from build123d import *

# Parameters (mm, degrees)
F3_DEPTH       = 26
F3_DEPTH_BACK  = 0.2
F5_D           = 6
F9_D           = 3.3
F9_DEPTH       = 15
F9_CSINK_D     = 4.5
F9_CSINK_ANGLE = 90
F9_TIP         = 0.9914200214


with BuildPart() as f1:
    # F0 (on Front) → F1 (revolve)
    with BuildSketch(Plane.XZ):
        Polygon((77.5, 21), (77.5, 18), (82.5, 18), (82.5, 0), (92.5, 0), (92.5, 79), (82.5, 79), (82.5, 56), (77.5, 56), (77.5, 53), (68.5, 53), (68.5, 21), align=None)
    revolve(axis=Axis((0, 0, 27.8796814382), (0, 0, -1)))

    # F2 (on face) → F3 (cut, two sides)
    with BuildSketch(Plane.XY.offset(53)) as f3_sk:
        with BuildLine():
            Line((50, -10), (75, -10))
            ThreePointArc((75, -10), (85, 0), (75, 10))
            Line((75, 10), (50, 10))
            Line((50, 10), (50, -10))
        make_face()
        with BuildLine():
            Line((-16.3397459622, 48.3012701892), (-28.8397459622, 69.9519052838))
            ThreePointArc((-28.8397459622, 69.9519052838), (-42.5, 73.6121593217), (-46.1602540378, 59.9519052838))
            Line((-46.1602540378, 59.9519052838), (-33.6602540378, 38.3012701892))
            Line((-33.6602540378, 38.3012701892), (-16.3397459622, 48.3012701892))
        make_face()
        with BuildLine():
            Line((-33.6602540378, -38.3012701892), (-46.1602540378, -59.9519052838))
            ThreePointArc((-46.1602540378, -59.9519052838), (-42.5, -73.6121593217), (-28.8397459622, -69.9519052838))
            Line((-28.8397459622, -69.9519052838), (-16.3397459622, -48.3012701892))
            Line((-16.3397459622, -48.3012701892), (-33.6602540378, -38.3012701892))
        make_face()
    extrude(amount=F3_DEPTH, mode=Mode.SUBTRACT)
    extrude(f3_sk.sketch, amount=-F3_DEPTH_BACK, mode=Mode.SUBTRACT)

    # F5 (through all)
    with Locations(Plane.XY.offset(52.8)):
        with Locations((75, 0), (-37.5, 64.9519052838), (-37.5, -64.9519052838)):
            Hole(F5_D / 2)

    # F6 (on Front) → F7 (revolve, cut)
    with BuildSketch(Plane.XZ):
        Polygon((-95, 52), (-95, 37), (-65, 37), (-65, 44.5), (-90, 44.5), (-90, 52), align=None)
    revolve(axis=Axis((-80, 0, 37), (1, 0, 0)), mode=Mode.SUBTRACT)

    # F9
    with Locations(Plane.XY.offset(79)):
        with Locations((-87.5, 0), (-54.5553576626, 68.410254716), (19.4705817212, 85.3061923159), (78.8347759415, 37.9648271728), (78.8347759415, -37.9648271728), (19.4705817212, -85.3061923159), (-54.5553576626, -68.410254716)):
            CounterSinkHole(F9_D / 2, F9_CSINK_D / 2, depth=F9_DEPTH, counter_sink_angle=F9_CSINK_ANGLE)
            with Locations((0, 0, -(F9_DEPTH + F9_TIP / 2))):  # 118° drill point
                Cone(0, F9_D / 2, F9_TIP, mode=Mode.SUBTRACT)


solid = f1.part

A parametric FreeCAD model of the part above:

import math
import FreeCAD as App
import Part
import Sketcher
Q = App.Units.Quantity

doc = App.newDocument("Part")
body = doc.addObject("PartDesign::Body", "Body")

sketch1 = doc.addObject("Sketcher::SketchObject", "Sketch")
body.addObject(sketch1)
sketch1.AttachmentSupport = (doc.XZ_Plane, [""])
sketch1.MapMode = "FlatFace"
sketch1.addGeometry([
    Part.LineSegment(App.Vector(77.5, 21, 0), App.Vector(77.5, 18, 0)),
    Part.LineSegment(App.Vector(77.5, 18, 0), App.Vector(82.5, 18, 0)),
    Part.LineSegment(App.Vector(82.5, 18, 0), App.Vector(82.5, 0, 0)),
    Part.LineSegment(App.Vector(82.5, 0, 0), App.Vector(92.5, 0, 0)),
    Part.LineSegment(App.Vector(92.5, 0, 0), App.Vector(92.5, 79, 0)),
    Part.LineSegment(App.Vector(92.5, 79, 0), App.Vector(82.5, 79, 0)),
    Part.LineSegment(App.Vector(82.5, 79, 0), App.Vector(82.5, 56, 0)),
    Part.LineSegment(App.Vector(82.5, 56, 0), App.Vector(77.5, 56, 0)),
    Part.LineSegment(App.Vector(77.5, 56, 0), App.Vector(77.5, 53, 0)),
    Part.LineSegment(App.Vector(77.5, 53, 0), App.Vector(68.5, 53, 0)),
    Part.LineSegment(App.Vector(68.5, 53, 0), App.Vector(68.5, 21, 0)),
    Part.LineSegment(App.Vector(68.5, 21, 0), App.Vector(77.5, 21, 0)),
], False)
sketch1.addConstraint([
    Sketcher.Constraint("Coincident", 0, 2, 1, 1),
    Sketcher.Constraint("Coincident", 1, 2, 2, 1),
    Sketcher.Constraint("Coincident", 2, 2, 3, 1),
    Sketcher.Constraint("Coincident", 3, 2, 4, 1),
    Sketcher.Constraint("Coincident", 4, 2, 5, 1),
    Sketcher.Constraint("Coincident", 5, 2, 6, 1),
    Sketcher.Constraint("Coincident", 6, 2, 7, 1),
    Sketcher.Constraint("Coincident", 7, 2, 8, 1),
    Sketcher.Constraint("Coincident", 8, 2, 9, 1),
    Sketcher.Constraint("Coincident", 9, 2, 10, 1),
    Sketcher.Constraint("Coincident", 10, 2, 11, 1),
    Sketcher.Constraint("Coincident", 11, 2, 0, 1),
    Sketcher.Constraint("Vertical", 0),
    Sketcher.Constraint("Horizontal", 1),
    Sketcher.Constraint("Vertical", 2),
    Sketcher.Constraint("Horizontal", 3),
    Sketcher.Constraint("Vertical", 4),
    Sketcher.Constraint("Horizontal", 5),
    Sketcher.Constraint("Vertical", 6),
    Sketcher.Constraint("Horizontal", 7),
    Sketcher.Constraint("Vertical", 8),
    Sketcher.Constraint("Horizontal", 9),
    Sketcher.Constraint("Vertical", 10),
    Sketcher.Constraint("Horizontal", 11),
    Sketcher.Constraint("PointOnObject", 2, 2, -1),
    Sketcher.Constraint("Vertical", 2, 2, 5, 2),
    Sketcher.Constraint("Vertical", 0, 2, 7, 2),
    Sketcher.Constraint("Equal", 0, 8),
    Sketcher.Constraint("DistanceX", 1, 1, 1, 2, Q("5 mm")),
    Sketcher.Constraint("DistanceX", 3, 1, 3, 2, Q("10 mm")),
    Sketcher.Constraint("DistanceX", 9, 2, 9, 1, Q("9 mm")),
    Sketcher.Constraint("DistanceY", 0, 2, 0, 1, Q("3 mm")),
    Sketcher.Constraint("DistanceY", 2, 2, 2, 1, Q("18 mm")),
    Sketcher.Constraint("DistanceY", 4, 1, 4, 2, Q("79 mm")),
    Sketcher.Constraint("DistanceY", 6, 2, 6, 1, Q("23 mm")),
    Sketcher.Constraint("DistanceX", -1, 1, 0, 2, Q("77.5 mm")),
])
revolution = doc.addObject("PartDesign::Revolution", "Revolution")
body.addObject(revolution)
revolution.Profile = sketch1
revolution.ReferenceAxis = (sketch1, ["V_Axis"])
revolution.Angle = 360

sketch2 = doc.addObject("Sketcher::SketchObject", "Sketch001")
body.addObject(sketch2)
sketch2.AttachmentSupport = (doc.XY_Plane, [""])
sketch2.MapMode = "FlatFace"
sketch2.AttachmentOffset = App.Placement(App.Vector(0, 0, 53), App.Rotation())
sketch2.addGeometry([
    Part.LineSegment(App.Vector(50, -10, 0), App.Vector(75, -10, 0)),
    Part.ArcOfCircle(Part.Circle(App.Vector(75, 0, 0), App.Vector(0, 0, 1), 10), math.radians(-90), math.radians(90)),
    Part.LineSegment(App.Vector(75, 10, 0), App.Vector(50, 10, 0)),
    Part.LineSegment(App.Vector(50, 10, 0), App.Vector(50, -10, 0)),
    Part.LineSegment(App.Vector(-16.339746, 48.30127, 0), App.Vector(-28.839746, 69.951905, 0)),
    Part.ArcOfCircle(Part.Circle(App.Vector(-37.5, 64.951905, 0), App.Vector(0, 0, 1), 10), math.radians(30), math.radians(210)),
    Part.LineSegment(App.Vector(-46.160254, 59.951905, 0), App.Vector(-33.660254, 38.30127, 0)),
    Part.LineSegment(App.Vector(-33.660254, 38.30127, 0), App.Vector(-16.339746, 48.30127, 0)),
    Part.LineSegment(App.Vector(-33.660254, -38.30127, 0), App.Vector(-46.160254, -59.951905, 0)),
    Part.ArcOfCircle(Part.Circle(App.Vector(-37.5, -64.951905, 0), App.Vector(0, 0, 1), 10), math.radians(150), math.radians(330)),
    Part.LineSegment(App.Vector(-28.839746, -69.951905, 0), App.Vector(-16.339746, -48.30127, 0)),
    Part.LineSegment(App.Vector(-16.339746, -48.30127, 0), App.Vector(-33.660254, -38.30127, 0)),
], False)
sketch2.addConstraint([
    Sketcher.Constraint("Tangent", 0, 2, 1, 1),
    Sketcher.Constraint("Tangent", 1, 2, 2, 1),
    Sketcher.Constraint("Coincident", 2, 2, 3, 1),
    Sketcher.Constraint("Coincident", 3, 2, 0, 1),
    Sketcher.Constraint("Tangent", 4, 2, 5, 1),
    Sketcher.Constraint("Tangent", 5, 2, 6, 1),
    Sketcher.Constraint("Coincident", 6, 2, 7, 1),
    Sketcher.Constraint("Coincident", 7, 2, 4, 1),
    Sketcher.Constraint("Tangent", 8, 2, 9, 1),
    Sketcher.Constraint("Tangent", 9, 2, 10, 1),
    Sketcher.Constraint("Coincident", 10, 2, 11, 1),
    Sketcher.Constraint("Coincident", 11, 2, 8, 1),
    Sketcher.Constraint("Horizontal", 0),
    Sketcher.Constraint("Horizontal", 2),
    Sketcher.Constraint("Vertical", 3),
    Sketcher.Constraint("Equal", 1, 5),
    Sketcher.Constraint("Equal", 5, 9),
    Sketcher.Constraint("Symmetric", 5, 3, 9, 3, -1),
    Sketcher.Constraint("Symmetric", 7, 2, 10, 2, -1),
    Sketcher.Constraint("Symmetric", 6, 2, 11, 2, -1),
    Sketcher.Constraint("PointOnObject", 1, 3, -1),
    Sketcher.Constraint("Parallel", 4, 6),
    Sketcher.Constraint("Perpendicular", 6, 7),
    Sketcher.Constraint("Radius", 1, Q("10 mm")),
    Sketcher.Constraint("DistanceX", 0, 1, 0, 2, Q("25 mm")),
    Sketcher.Constraint("Angle", 4, Q("120 deg")),
    Sketcher.Constraint("Distance", 4, Q("25 mm")),
    Sketcher.Constraint("DistanceX", -1, 1, 1, 3, Q("75 mm")),
    Sketcher.Constraint("DistanceX", 5, 3, -1, 1, Q("37.5 mm")),
    Sketcher.Constraint("DistanceY", -1, 1, 6, 2, Q("38.30127 mm")),
])
pocket1 = doc.addObject("PartDesign::Pocket", "Pocket")
body.addObject(pocket1)
pocket1.Profile = sketch2
pocket1.Type = "TwoLengths"
pocket1.Length = 26
pocket1.Length2 = 0.2
pocket1.Reversed = True

sketch3 = doc.addObject("Sketcher::SketchObject", "Sketch002")
body.addObject(sketch3)
sketch3.AttachmentSupport = (doc.XY_Plane, [""])
sketch3.MapMode = "FlatFace"
sketch3.AttachmentOffset = App.Placement(App.Vector(0, 0, 52.8), App.Rotation())
sketch3.addGeometry([
    Part.Circle(App.Vector(75, 0, 0), App.Vector(0, 0, 1), 3),
    Part.Circle(App.Vector(-37.5, 64.951905, 0), App.Vector(0, 0, 1), 3),
    Part.Circle(App.Vector(-37.5, -64.951905, 0), App.Vector(0, 0, 1), 3),
], False)
sketch3.addConstraint([
    Sketcher.Constraint("Equal", 0, 1),
    Sketcher.Constraint("Equal", 1, 2),
    Sketcher.Constraint("Symmetric", 1, 3, 2, 3, -1),
    Sketcher.Constraint("PointOnObject", 0, 3, -1),
    Sketcher.Constraint("Diameter", 0, Q("6 mm")),
    Sketcher.Constraint("DistanceX", -1, 1, 0, 3, Q("75 mm")),
    Sketcher.Constraint("DistanceX", 1, 3, -1, 1, Q("37.5 mm")),
    Sketcher.Constraint("DistanceY", 2, 3, 1, 3, Q("129.903811 mm")),
])
doc.recompute()
hole = doc.addObject("PartDesign::Hole", "Hole")
body.addObject(hole)
hole.Profile = sketch3
hole.ThreadType = "None"
hole.Diameter = 6
hole.DepthType = "ThroughAll"

sketch4 = doc.addObject("Sketcher::SketchObject", "Sketch003")
body.addObject(sketch4)
sketch4.AttachmentSupport = (doc.XZ_Plane, [""])
sketch4.MapMode = "FlatFace"
sketch4.addGeometry([
    Part.LineSegment(App.Vector(-95, 52, 0), App.Vector(-95, 37, 0)),
    Part.LineSegment(App.Vector(-95, 37, 0), App.Vector(-65, 37, 0)),
    Part.LineSegment(App.Vector(-65, 37, 0), App.Vector(-65, 44.5, 0)),
    Part.LineSegment(App.Vector(-65, 44.5, 0), App.Vector(-90, 44.5, 0)),
    Part.LineSegment(App.Vector(-90, 44.5, 0), App.Vector(-90, 52, 0)),
    Part.LineSegment(App.Vector(-90, 52, 0), App.Vector(-95, 52, 0)),
], False)
sketch4.addGeometry(Part.LineSegment(App.Vector(-95, 37, 0), App.Vector(-65, 37, 0)), True)
sketch4.addConstraint([
    Sketcher.Constraint("Coincident", 0, 2, 1, 1),
    Sketcher.Constraint("Coincident", 1, 2, 2, 1),
    Sketcher.Constraint("Coincident", 2, 2, 3, 1),
    Sketcher.Constraint("Coincident", 3, 2, 4, 1),
    Sketcher.Constraint("Coincident", 4, 2, 5, 1),
    Sketcher.Constraint("Coincident", 5, 2, 0, 1),
    Sketcher.Constraint("Vertical", 0),
    Sketcher.Constraint("Horizontal", 1),
    Sketcher.Constraint("Vertical", 2),
    Sketcher.Constraint("Horizontal", 3),
    Sketcher.Constraint("Vertical", 4),
    Sketcher.Constraint("Horizontal", 5),
    Sketcher.Constraint("Horizontal", 6),
    Sketcher.Constraint("Coincident", 6, 1, 0, 2),
    Sketcher.Constraint("Vertical", 2, 2, 6, 2),
    Sketcher.Constraint("Equal", 2, 4),
    Sketcher.Constraint("DistanceX", 1, 1, 1, 2, Q("30 mm")),
    Sketcher.Constraint("DistanceX", 3, 2, 3, 1, Q("25 mm")),
    Sketcher.Constraint("DistanceY", 0, 2, 0, 1, Q("15 mm")),
    Sketcher.Constraint("DistanceX", 0, 2, -1, 1, Q("95 mm")),
    Sketcher.Constraint("DistanceY", -1, 1, 0, 2, Q("37 mm")),
])
groove = doc.addObject("PartDesign::Groove", "Groove")
body.addObject(groove)
groove.Profile = sketch4
groove.ReferenceAxis = (sketch4, ["Axis0"])
groove.Angle = 360

sketch5 = doc.addObject("Sketcher::SketchObject", "Sketch004")
body.addObject(sketch5)
sketch5.AttachmentSupport = (doc.XY_Plane, [""])
sketch5.MapMode = "FlatFace"
sketch5.AttachmentOffset = App.Placement(App.Vector(0, 0, 79), App.Rotation())
sketch5.addGeometry([
    Part.Circle(App.Vector(-87.5, 0, 0), App.Vector(0, 0, 1), 1.65),
    Part.Circle(App.Vector(-54.555358, 68.410255, 0), App.Vector(0, 0, 1), 1.65),
    Part.Circle(App.Vector(19.470582, 85.306192, 0), App.Vector(0, 0, 1), 1.65),
    Part.Circle(App.Vector(78.834776, 37.964827, 0), App.Vector(0, 0, 1), 1.65),
    Part.Circle(App.Vector(78.834776, -37.964827, 0), App.Vector(0, 0, 1), 1.65),
    Part.Circle(App.Vector(19.470582, -85.306192, 0), App.Vector(0, 0, 1), 1.65),
    Part.Circle(App.Vector(-54.555358, -68.410255, 0), App.Vector(0, 0, 1), 1.65),
], False)
sketch5.addConstraint([
    Sketcher.Constraint("Equal", 0, 1),
    Sketcher.Constraint("Equal", 1, 2),
    Sketcher.Constraint("Equal", 2, 3),
    Sketcher.Constraint("Equal", 3, 4),
    Sketcher.Constraint("Equal", 4, 5),
    Sketcher.Constraint("Equal", 5, 6),
    Sketcher.Constraint("Symmetric", 3, 3, 4, 3, -1),
    Sketcher.Constraint("Symmetric", 2, 3, 5, 3, -1),
    Sketcher.Constraint("Symmetric", 1, 3, 6, 3, -1),
    Sketcher.Constraint("PointOnObject", 0, 3, -1),
    Sketcher.Constraint("Diameter", 0, Q("3.3 mm")),
    Sketcher.Constraint("DistanceX", 0, 3, -1, 1, Q("87.5 mm")),
    Sketcher.Constraint("DistanceX", -1, 1, 2, 3, Q("19.470582 mm")),
    Sketcher.Constraint("DistanceX", 1, 3, 2, 3, Q("74.025939 mm")),
    Sketcher.Constraint("DistanceY", 4, 3, 2, 3, Q("123.271019 mm")),
    Sketcher.Constraint("DistanceY", 4, 3, 1, 3, Q("106.375082 mm")),
    Sketcher.Constraint("DistanceY", 6, 3, 1, 3, Q("136.820509 mm")),
    Sketcher.Constraint("DistanceX", -1, 1, 3, 3, Q("78.834776 mm")),
])
doc.recompute()
hole2 = doc.addObject("PartDesign::Hole", "Hole001")
body.addObject(hole2)
hole2.Profile = sketch5
hole2.ThreadType = "None"
hole2.Diameter = 3.3
hole2.DepthType = "Dimension"
hole2.Depth = 15
hole2.DrillPoint = "Angled"
hole2.DrillPointAngle = 118
hole2.HoleCutType = "Countersink"
hole2.HoleCutDiameter = 4.5
hole2.HoleCutCountersinkAngle = 90

doc.recompute()
